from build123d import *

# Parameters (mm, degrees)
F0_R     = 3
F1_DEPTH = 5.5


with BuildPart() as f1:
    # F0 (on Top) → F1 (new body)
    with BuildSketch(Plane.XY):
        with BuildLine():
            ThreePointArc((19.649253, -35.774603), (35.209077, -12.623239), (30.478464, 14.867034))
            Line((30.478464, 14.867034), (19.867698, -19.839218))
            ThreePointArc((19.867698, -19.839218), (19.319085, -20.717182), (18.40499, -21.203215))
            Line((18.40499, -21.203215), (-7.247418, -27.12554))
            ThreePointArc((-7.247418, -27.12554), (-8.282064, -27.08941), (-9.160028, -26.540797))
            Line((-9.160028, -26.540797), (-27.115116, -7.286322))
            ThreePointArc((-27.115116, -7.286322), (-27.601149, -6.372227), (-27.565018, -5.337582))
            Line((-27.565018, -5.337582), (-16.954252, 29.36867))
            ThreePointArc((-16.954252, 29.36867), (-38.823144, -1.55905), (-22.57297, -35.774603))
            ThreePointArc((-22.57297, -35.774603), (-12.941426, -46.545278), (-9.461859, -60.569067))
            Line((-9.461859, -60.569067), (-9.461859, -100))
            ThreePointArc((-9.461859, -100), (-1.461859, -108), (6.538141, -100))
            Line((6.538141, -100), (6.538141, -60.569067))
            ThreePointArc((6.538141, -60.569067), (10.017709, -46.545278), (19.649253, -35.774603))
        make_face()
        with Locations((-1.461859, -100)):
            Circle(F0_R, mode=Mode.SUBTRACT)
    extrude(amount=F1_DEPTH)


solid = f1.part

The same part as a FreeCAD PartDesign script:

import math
import FreeCAD as App
import Part
import Sketcher
from FreeCAD import Vector
Q = App.Units.Quantity

doc = App.newDocument("Part")
body = doc.addObject("PartDesign::Body", "Body")

# Sketch on XY plane
sketch1 = body.newObject("Sketcher::SketchObject", "Sketch")
sketch1.AttachmentSupport = (doc.getObject("XY_Plane"), [""])
sketch1.MapMode = "FlatFace"
sketch1.addGeometry(Part.ArcOfCircle(Part.Circle(Vector(-1.461858, -4.781523, 0), Vector(0, 0, 1), 37.5), math.radians(-55.739045), math.radians(31.59836)), False)
sketch1.addGeometry(Part.LineSegment(Vector(30.478464, 14.867034, 0), Vector(19.867698, -19.839218, 0)), False)
sketch1.addGeometry(Part.ArcOfCircle(Part.Circle(Vector(17.955087, -19.254474, 0), Vector(0, 0, 1), 2.000001), math.radians(-76.999993), math.radians(-17.000019)), False)
sketch1.addGeometry(Part.LineSegment(Vector(18.40499, -21.203215, 0), Vector(-7.247418, -27.12554, 0)), False)
sketch1.addGeometry(Part.ArcOfCircle(Part.Circle(Vector(-7.697322, -25.176803, 0), Vector(0, 0, 1), 1.999998), math.radians(-137.000029), math.radians(-76.99994)), False)
sketch1.addGeometry(Part.LineSegment(Vector(-9.160028, -26.540797, 0), Vector(-27.115116, -7.286322, 0)), False)
sketch1.addGeometry(Part.ArcOfCircle(Part.Circle(Vector(-25.65241, -5.922326, 0), Vector(0, 0, 1), 1.999998), math.radians(162.999972), math.radians(223.000023)), False)
sketch1.addGeometry(Part.LineSegment(Vector(-27.565018, -5.337582, 0), Vector(-16.954252, 29.36867, 0)), False)
sketch1.addGeometry(Part.ArcOfCircle(Part.Circle(Vector(-1.461859, -4.781524, 0), Vector(0, 0, 1), 37.5), math.radians(114.40164), math.radians(235.739044)), False)
sketch1.addGeometry(Part.ArcOfCircle(Part.Circle(Vector(-39.461857, -60.569066, 0), Vector(0, 0, 1), 29.999998), math.radians(-0.000003), math.radians(55.739047)), False)
sketch1.addGeometry(Part.LineSegment(Vector(-9.461859, -60.569067, 0), Vector(-9.461859, -100, 0)), False)
sketch1.addGeometry(Part.ArcOfCircle(Part.Circle(Vector(-1.461859, -100, 0), Vector(0, 0, 1), 8), math.radians(180), math.radians(360)), False)
sketch1.addGeometry(Part.LineSegment(Vector(6.538141, -100, 0), Vector(6.538141, -60.569067, 0)), False)
sketch1.addGeometry(Part.ArcOfCircle(Part.Circle(Vector(36.538143, -60.569069, 0), Vector(0, 0, 1), 30.000002), math.radians(124.260955), math.radians(179.999997)), False)
sketch1.addGeometry(Part.Circle(Vector(-1.461859, -100, 0), Vector(0, 0, 1), 3), False)
sketch1.addConstraint(Sketcher.Constraint("Coincident", 0, 2, 1, 1))
sketch1.addConstraint(Sketcher.Constraint("Tangent", 1, 2, 2, 2))
sketch1.addConstraint(Sketcher.Constraint("Tangent", 2, 1, 3, 1))
sketch1.addConstraint(Sketcher.Constraint("Tangent", 3, 2, 4, 2))
sketch1.addConstraint(Sketcher.Constraint("Tangent", 4, 1, 5, 1))
sketch1.addConstraint(Sketcher.Constraint("Tangent", 5, 2, 6, 2))
sketch1.addConstraint(Sketcher.Constraint("Tangent", 6, 1, 7, 1))
sketch1.addConstraint(Sketcher.Constraint("Coincident", 7, 2, 8, 1))
sketch1.addConstraint(Sketcher.Constraint("Tangent", 8, 2, 9, 2))
sketch1.addConstraint(Sketcher.Constraint("Tangent", 9, 1, 10, 1))
sketch1.addConstraint(Sketcher.Constraint("Tangent", 10, 2, 11, 1))
sketch1.addConstraint(Sketcher.Constraint("Tangent", 11, 2, 12, 1))
sketch1.addConstraint(Sketcher.Constraint("Tangent", 12, 2, 13, 2))
sketch1.addConstraint(Sketcher.Constraint("Tangent", 13, 1, 0, 1))
sketch1.addConstraint(Sketcher.Constraint("Vertical", 10))
sketch1.addConstraint(Sketcher.Constraint("Vertical", 12))
sketch1.addConstraint(Sketcher.Constraint("Coincident", 8, 3, 0, 3))
sketch1.addConstraint(Sketcher.Constraint("Coincident", 14, 3, 11, 3))
sketch1.addConstraint(Sketcher.Constraint("Equal", 4, 6))
sketch1.addConstraint(Sketcher.Constraint("Equal", 0, 8))
sketch1.addConstraint(Sketcher.Constraint("Parallel", 1, 7))
sketch1.addConstraint(Sketcher.Constraint("Horizontal", 13, 3, 9, 1))
sketch1.addConstraint(Sketcher.Constraint("Horizontal", 8, 2, 13, 1))
sketch1.addConstraint(Sketcher.Constraint("Equal", 3, 5))
sketch1.addConstraint(Sketcher.Constraint("Equal", 1, 7))
sketch1.addConstraint(Sketcher.Constraint("Diameter", 14, Q("6 mm")))
sketch1.addConstraint(Sketcher.Constraint("Radius", 2, Q("2.000001 mm")))
sketch1.addConstraint(Sketcher.Constraint("Radius", 6, Q("1.999998 mm")))
sketch1.addConstraint(Sketcher.Constraint("Radius", 9, Q("29.999998 mm")))
sketch1.addConstraint(Sketcher.Constraint("Radius", 11, Q("8 mm")))
sketch1.addConstraint(Sketcher.Constraint("Radius", 0, Q("37.5 mm")))
sketch1.addConstraint(Sketcher.Constraint("Angle", 1, Q("-107 deg")))
sketch1.addConstraint(Sketcher.Constraint("Angle", 3, Q("-167 deg")))
sketch1.addConstraint(Sketcher.Constraint("Angle", 5, Q("132.999999 deg")))
sketch1.addConstraint(Sketcher.Constraint("DistanceY", 11, 3, -1, 1, Q("100 mm")))
sketch1.addConstraint(Sketcher.Constraint("DistanceX", -1, 1, 1, 2, Q("19.867698 mm")))
sketch1.addConstraint(Sketcher.Constraint("DistanceY", 5, 2, 8, 3, Q("2.504798 mm")))
sketch1.addConstraint(Sketcher.Constraint("DistanceY", 8, 2, 4, 3, Q("10.5978 mm")))
sketch1.addConstraint(Sketcher.Constraint("DistanceY", 10, 2, 10, 1, Q("39.430933 mm")))
pad1 = body.newObject("PartDesign::Pad", "Pad")
pad1.Profile = sketch1
pad1.Length = 5.5

doc.recompute()
